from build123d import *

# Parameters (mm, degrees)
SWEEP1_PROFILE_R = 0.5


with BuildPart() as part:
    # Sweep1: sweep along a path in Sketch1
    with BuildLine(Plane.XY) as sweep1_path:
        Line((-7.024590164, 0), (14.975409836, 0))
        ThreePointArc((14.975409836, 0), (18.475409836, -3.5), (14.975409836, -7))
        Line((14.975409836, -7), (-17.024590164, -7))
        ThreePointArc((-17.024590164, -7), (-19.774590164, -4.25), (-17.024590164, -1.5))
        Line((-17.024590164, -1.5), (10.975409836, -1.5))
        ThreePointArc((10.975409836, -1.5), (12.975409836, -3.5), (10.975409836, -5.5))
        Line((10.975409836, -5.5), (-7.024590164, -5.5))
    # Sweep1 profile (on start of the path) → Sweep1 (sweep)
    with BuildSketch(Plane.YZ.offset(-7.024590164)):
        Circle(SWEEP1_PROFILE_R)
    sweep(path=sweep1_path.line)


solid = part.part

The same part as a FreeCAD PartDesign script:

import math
import FreeCAD as App
import Part
import Sketcher

V = App.Vector

doc = App.newDocument("Part")
body = doc.addObject("PartDesign::Body", "Body")

# Sketch on YZ plane
sketch1 = doc.addObject("Sketcher::SketchObject", "Sketch")
body.addObject(sketch1)
sketch1.AttachmentSupport = (doc.YZ_Plane, [""])
sketch1.MapMode = "FlatFace"
sketch1.AttachmentOffset = App.Placement(V(0, 0, -7.02459), App.Rotation())
sketch1.addGeometry(Part.Circle(V(0, 0, 0), V(0, 0, 1), 0.5), False)
sketch1.addConstraint([
    Sketcher.Constraint("Coincident", 0, 3, -1, 1),
    Sketcher.Constraint("Diameter", 0, 1.0),
])

# Sketch on XY plane
sketch2 = doc.addObject("Sketcher::SketchObject", "Sketch001")
body.addObject(sketch2)
sketch2.AttachmentSupport = (doc.XY_Plane, [""])
sketch2.MapMode = "FlatFace"
sketch2.addGeometry([
    Part.LineSegment(V(-7, 0, 0), V(15, 0, 0)),  # 0
    Part.ArcOfCircle(Part.Circle(V(15, -3.5, 0), V(0, 0, 1), 3.5), math.radians(-90), math.radians(90)),  # 1
    Part.LineSegment(V(15, -7, 0), V(-17, -7, 0)),  # 2
    Part.ArcOfCircle(Part.Circle(V(-17, -4.2, 0), V(0, 0, 1), 2.8), math.radians(90), math.radians(270)),  # 3
    Part.LineSegment(V(-17, -1.5, 0), V(11, -1.5, 0)),  # 4
    Part.ArcOfCircle(Part.Circle(V(11, -3.5, 0), V(0, 0, 1), 2), math.radians(-90), math.radians(90)),  # 5
    Part.LineSegment(V(11, -5.5, 0), V(-7, -5.5, 0)),  # 6
], False)
sketch2.addConstraint([
    Sketcher.Constraint("Tangent", 0, 2, 1, 2),
    Sketcher.Constraint("Tangent", 1, 1, 2, 1),
    Sketcher.Constraint("Tangent", 2, 2, 3, 2),
    Sketcher.Constraint("Tangent", 3, 1, 4, 1),
    Sketcher.Constraint("Tangent", 4, 2, 5, 2),
    Sketcher.Constraint("Tangent", 5, 1, 6, 1),
    Sketcher.Constraint("Horizontal", 0),
    Sketcher.Constraint("Horizontal", 2),
    Sketcher.Constraint("Horizontal", 4),
    Sketcher.Constraint("Horizontal", 6),
    Sketcher.Constraint("PointOnObject", 0, 1, -1),
    Sketcher.Constraint("Horizontal", 1, 3, 5, 3),
    Sketcher.Constraint("Vertical", 0, 1, 6, 2),
    Sketcher.Constraint("Radius", 5, 2.0),
    Sketcher.Constraint("Radius", 1, 3.5),
    Sketcher.Constraint("DistanceX", 0, 1, 0, 2, 22.0),
    Sketcher.Constraint("DistanceX", 2, 2, 2, 1, 32.0),
    Sketcher.Constraint("DistanceX", 4, 1, 4, 2, 28.0),
    Sketcher.Constraint("DistanceX", -1, 1, 1, 3, 14.97541),
])
doc.recompute()

additivepipe = doc.addObject("PartDesign::AdditivePipe", "AdditivePipe")
body.addObject(additivepipe)
additivepipe.Profile = sketch1
additivepipe.Spine = (sketch2, ["Edge1", "Edge2", "Edge3", "Edge4", "Edge5", "Edge6", "Edge7"])

doc.recompute()
